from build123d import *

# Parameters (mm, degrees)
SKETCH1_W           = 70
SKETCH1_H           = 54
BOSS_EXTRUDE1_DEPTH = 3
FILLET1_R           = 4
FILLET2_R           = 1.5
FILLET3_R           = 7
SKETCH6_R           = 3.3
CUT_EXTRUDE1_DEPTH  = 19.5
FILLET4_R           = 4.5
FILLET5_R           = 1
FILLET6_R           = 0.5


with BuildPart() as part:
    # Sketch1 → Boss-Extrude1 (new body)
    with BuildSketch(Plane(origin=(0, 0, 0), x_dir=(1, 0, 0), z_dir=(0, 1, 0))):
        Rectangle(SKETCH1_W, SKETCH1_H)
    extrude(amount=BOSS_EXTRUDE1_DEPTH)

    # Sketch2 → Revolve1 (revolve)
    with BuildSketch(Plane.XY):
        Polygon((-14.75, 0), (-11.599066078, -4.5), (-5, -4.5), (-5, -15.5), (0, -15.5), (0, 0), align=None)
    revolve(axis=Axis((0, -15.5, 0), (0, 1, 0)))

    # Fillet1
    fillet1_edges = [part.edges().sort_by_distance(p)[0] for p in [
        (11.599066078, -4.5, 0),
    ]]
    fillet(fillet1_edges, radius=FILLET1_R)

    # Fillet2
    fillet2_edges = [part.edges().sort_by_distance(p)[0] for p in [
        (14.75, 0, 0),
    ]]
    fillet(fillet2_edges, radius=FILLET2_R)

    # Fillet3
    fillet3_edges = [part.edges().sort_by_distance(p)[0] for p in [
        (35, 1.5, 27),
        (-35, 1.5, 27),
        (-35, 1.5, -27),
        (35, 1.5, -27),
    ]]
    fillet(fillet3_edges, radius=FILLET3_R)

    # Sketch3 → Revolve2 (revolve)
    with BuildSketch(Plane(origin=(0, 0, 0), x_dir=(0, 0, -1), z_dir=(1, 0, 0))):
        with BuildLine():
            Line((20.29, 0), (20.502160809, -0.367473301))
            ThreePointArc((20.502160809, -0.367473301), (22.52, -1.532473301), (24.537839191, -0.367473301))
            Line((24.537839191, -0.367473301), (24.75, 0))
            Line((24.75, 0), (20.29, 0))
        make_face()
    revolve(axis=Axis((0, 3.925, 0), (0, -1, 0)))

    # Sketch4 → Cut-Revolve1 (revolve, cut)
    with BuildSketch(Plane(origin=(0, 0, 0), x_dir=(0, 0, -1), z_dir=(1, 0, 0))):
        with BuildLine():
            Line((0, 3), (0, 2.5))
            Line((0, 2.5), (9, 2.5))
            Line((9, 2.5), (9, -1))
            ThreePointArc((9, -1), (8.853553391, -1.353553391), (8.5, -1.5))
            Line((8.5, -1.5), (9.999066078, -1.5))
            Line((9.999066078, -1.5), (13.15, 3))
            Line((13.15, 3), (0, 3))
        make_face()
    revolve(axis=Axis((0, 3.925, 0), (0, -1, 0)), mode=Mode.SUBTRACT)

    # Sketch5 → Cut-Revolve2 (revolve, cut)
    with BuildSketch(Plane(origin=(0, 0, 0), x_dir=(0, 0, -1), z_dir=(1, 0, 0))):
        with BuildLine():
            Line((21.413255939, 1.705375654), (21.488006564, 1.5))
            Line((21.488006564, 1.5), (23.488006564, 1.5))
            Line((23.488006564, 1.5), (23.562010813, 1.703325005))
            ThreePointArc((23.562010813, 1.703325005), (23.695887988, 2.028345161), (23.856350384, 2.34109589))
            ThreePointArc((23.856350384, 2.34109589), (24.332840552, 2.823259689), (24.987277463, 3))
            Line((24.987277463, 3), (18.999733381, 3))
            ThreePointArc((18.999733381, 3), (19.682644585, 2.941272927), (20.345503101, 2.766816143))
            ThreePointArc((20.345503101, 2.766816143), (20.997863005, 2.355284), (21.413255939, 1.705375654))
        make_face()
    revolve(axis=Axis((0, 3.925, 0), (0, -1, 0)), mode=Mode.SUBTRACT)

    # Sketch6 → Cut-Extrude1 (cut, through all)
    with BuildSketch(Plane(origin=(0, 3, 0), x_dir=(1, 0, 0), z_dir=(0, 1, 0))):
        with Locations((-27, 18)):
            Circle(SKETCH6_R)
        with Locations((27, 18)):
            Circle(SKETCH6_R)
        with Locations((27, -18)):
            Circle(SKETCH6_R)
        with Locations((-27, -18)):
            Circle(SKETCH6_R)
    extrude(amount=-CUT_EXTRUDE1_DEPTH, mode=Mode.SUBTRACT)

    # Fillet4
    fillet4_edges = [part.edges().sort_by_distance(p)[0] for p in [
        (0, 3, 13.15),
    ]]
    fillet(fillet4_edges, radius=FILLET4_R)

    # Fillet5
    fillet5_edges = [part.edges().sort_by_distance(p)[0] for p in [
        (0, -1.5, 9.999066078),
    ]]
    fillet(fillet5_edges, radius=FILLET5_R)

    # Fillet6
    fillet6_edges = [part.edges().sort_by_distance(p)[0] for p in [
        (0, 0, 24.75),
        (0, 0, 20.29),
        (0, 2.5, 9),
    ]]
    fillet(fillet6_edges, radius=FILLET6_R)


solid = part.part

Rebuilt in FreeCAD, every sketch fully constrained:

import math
import FreeCAD as App
import Part
import Sketcher
from FreeCAD import Vector
Q = App.Units.Quantity


def edges_at(feature, points):
    """Names of the edges that pass closest to the given points."""
    edges = feature.Shape.Edges
    near = lambda p: min(range(len(edges)), key=lambda i: edges[i].distToShape(Part.Vertex(*p))[0])
    return sorted({f"Edge{near(p) + 1}" for p in points})


def add_polygon(sketch, points):
    """Adds a closed chain of lines whose ends are joined by coincident constraints."""
    first, n = sketch.GeometryCount, len(points)
    for a, b in zip(points, points[1:] + points[:1]):
        sketch.addGeometry(Part.LineSegment(App.Vector(*a, 0), App.Vector(*b, 0)), False)
    for i in range(n):
        sketch.addConstraint(Sketcher.Constraint("Coincident", first + i, 2, first + (i + 1) % n, 1))

doc = App.newDocument("Part")
body = doc.addObject("PartDesign::Body", "Body")

# Sketch on XZ plane
sketch1 = doc.addObject("Sketcher::SketchObject", "Sketch")
body.addObject(sketch1)
sketch1.AttachmentSupport = (doc.XZ_Plane, [""])
sketch1.MapMode = "FlatFace"
add_polygon(sketch1, [(-35, -27), (-35, 27), (35, 27), (35, -27)])  # lines 0-3
sketch1.addConstraint(Sketcher.Constraint("Vertical", 0))
sketch1.addConstraint(Sketcher.Constraint("Horizontal", 1))
sketch1.addConstraint(Sketcher.Constraint("Vertical", 2))
sketch1.addConstraint(Sketcher.Constraint("Horizontal", 3))
sketch1.addConstraint(Sketcher.Constraint("Symmetric", 0, 2, 2, 2, -1, 1))
sketch1.addConstraint(Sketcher.Constraint("DistanceX", 1, 1, 1, 2, 70.0))
sketch1.addConstraint(Sketcher.Constraint("DistanceY", 0, 1, 0, 2, 54.0))
pad1 = doc.addObject("PartDesign::Pad", "Pad")
body.addObject(pad1)
pad1.Profile = sketch1
pad1.Length = 3
pad1.Reversed = True

# Sketch on XY plane
sketch2 = doc.addObject("Sketcher::SketchObject", "Sketch001")
body.addObject(sketch2)
sketch2.AttachmentSupport = (doc.XY_Plane, [""])
sketch2.MapMode = "FlatFace"
add_polygon(sketch2, [(-15, 0), (-12, -4), (-5, -4), (-5, -16), (0, -16), (0, 0)])  # lines 0-5
sketch2.addConstraint(Sketcher.Constraint("Horizontal", 1))
sketch2.addConstraint(Sketcher.Constraint("Vertical", 2))
sketch2.addConstraint(Sketcher.Constraint("Horizontal", 3))
sketch2.addConstraint(Sketcher.Constraint("Vertical", 4))
sketch2.addConstraint(Sketcher.Constraint("Horizontal", 5))
sketch2.addConstraint(Sketcher.Constraint("Coincident", 4, 2, -1, 1))
sketch2.addConstraint(Sketcher.Constraint("DistanceX", 3, 1, 3, 2, 5.0))
sketch2.addConstraint(Sketcher.Constraint("DistanceY", 2, 2, 2, 1, 11.0))
sketch2.addConstraint(Sketcher.Constraint("Angle", 0, Q("-55 deg")))
sketch2.addConstraint(Sketcher.Constraint("DistanceY", 4, 1, 4, 2, 15.5))
sketch2.addConstraint(Sketcher.Constraint("DistanceX", 5, 2, 5, 1, 14.75))
revolution = doc.addObject("PartDesign::Revolution", "Revolution")
body.addObject(revolution)
revolution.Profile = sketch2
revolution.ReferenceAxis = (sketch2, ["V_Axis"])
revolution.Angle = 360
doc.recompute()

fillet = doc.addObject("PartDesign::Fillet", "Fillet")
body.addObject(fillet)
fillet.Base = (revolution, edges_at(revolution, [(11.599, -4.5, 0)]))
fillet.Radius = 4
doc.recompute()

fillet2 = doc.addObject("PartDesign::Fillet", "Fillet001")
body.addObject(fillet2)
fillet2.Base = (fillet, edges_at(fillet, [(14.75, 0, 0)]))
fillet2.Radius = 1.5
doc.recompute()

fillet3 = doc.addObject("PartDesign::Fillet", "Fillet002")
body.addObject(fillet3)
fillet3.Base = (fillet2, edges_at(fillet2, [
    (35, 1.5, 27),
    (-35, 1.5, 27),
    (-35, 1.5, -27),
    (35, 1.5, -27),
]))
fillet3.Radius = 7

# Sketch on YZ plane
sketch3 = doc.addObject("Sketcher::SketchObject", "Sketch002")
body.addObject(sketch3)
sketch3.AttachmentSupport = (doc.YZ_Plane, [""])
sketch3.MapMode = "FlatFace"
sketch3.addGeometry(Part.LineSegment(Vector(0, -20.29, 0), Vector(-0.37, -20.5, 0)), False)
sketch3.addGeometry(Part.ArcOfCircle(Part.Circle(Vector(0.8, -22.52, 0), Vector(0, 0, 1), 2.33), math.radians(120), math.radians(240)), False)
sketch3.addGeometry(Part.LineSegment(Vector(-0.37, -24.54, 0), Vector(0, -24.75, 0)), False)
sketch3.addGeometry(Part.LineSegment(Vector(0, -24.75, 0), Vector(0, -20.29, 0)), False)
sketch3.addConstraint(Sketcher.Constraint("Tangent", 0, 2, 1, 1))
sketch3.addConstraint(Sketcher.Constraint("Tangent", 1, 2, 2, 1))
sketch3.addConstraint(Sketcher.Constraint("Coincident", 2, 2, 3, 1))
sketch3.addConstraint(Sketcher.Constraint("Coincident", 3, 2, 0, 1))
sketch3.addConstraint(Sketcher.Constraint("Vertical", 3))
sketch3.addConstraint(Sketcher.Constraint("PointOnObject", 2, 2, -2))
sketch3.addConstraint(Sketcher.Constraint("Vertical", 0, 2, 1, 2))
sketch3.addConstraint(Sketcher.Constraint("Angle", 0, Q("-150 deg")))
sketch3.addConstraint(Sketcher.Constraint("Radius", 1, 2.33))
sketch3.addConstraint(Sketcher.Constraint("DistanceY", 3, 1, 3, 2, 4.46))
sketch3.addConstraint(Sketcher.Constraint("DistanceY", 1, 3, -1, 1, 22.52))
revolution2 = doc.addObject("PartDesign::Revolution", "Revolution001")
body.addObject(revolution2)
revolution2.Profile = sketch3
revolution2.ReferenceAxis = (sketch3, ["H_Axis"])
revolution2.Angle = 360

# Sketch on YZ plane
sketch4 = doc.addObject("Sketcher::SketchObject", "Sketch003")
body.addObject(sketch4)
sketch4.AttachmentSupport = (doc.YZ_Plane, [""])
sketch4.MapMode = "FlatFace"
sketch4.addGeometry(Part.LineSegment(Vector(3, 0, 0), Vector(2.5, 0, 0)), False)
sketch4.addGeometry(Part.LineSegment(Vector(2.5, 0, 0), Vector(2.5, -9, 0)), False)
sketch4.addGeometry(Part.LineSegment(Vector(2.5, -9, 0), Vector(-1, -9, 0)), False)
sketch4.addGeometry(Part.ArcOfCircle(Part.Circle(Vector(-1, -8.5, 0), Vector(0, 0, 1), 0.5), math.radians(180), math.radians(270)), False)
sketch4.addGeometry(Part.LineSegment(Vector(-1.5, -8.5, 0), Vector(-1.5, -10, 0)), False)
sketch4.addGeometry(Part.LineSegment(Vector(-1.5, -10, 0), Vector(3, -13.15, 0)), False)
sketch4.addGeometry(Part.LineSegment(Vector(3, -13.15, 0), Vector(3, 0, 0)), False)
sketch4.addConstraint(Sketcher.Constraint("Coincident", 0, 2, 1, 1))
sketch4.addConstraint(Sketcher.Constraint("Coincident", 1, 2, 2, 1))
sketch4.addConstraint(Sketcher.Constraint("Tangent", 2, 2, 3, 2))
sketch4.addConstraint(Sketcher.Constraint("Tangent", 3, 1, 4, 1))
sketch4.addConstraint(Sketcher.Constraint("Coincident", 4, 2, 5, 1))
sketch4.addConstraint(Sketcher.Constraint("Coincident", 5, 2, 6, 1))
sketch4.addConstraint(Sketcher.Constraint("Coincident", 6, 2, 0, 1))
sketch4.addConstraint(Sketcher.Constraint("Horizontal", 0))
sketch4.addConstraint(Sketcher.Constraint("Vertical", 1))
sketch4.addConstraint(Sketcher.Constraint("Horizontal", 2))
sketch4.addConstraint(Sketcher.Constraint("Vertical", 4))
sketch4.addConstraint(Sketcher.Constraint("Vertical", 6))
sketch4.addConstraint(Sketcher.Constraint("PointOnObject", 0, 2, -1))
sketch4.addConstraint(Sketcher.Constraint("Radius", 3, 0.5))
sketch4.addConstraint(Sketcher.Constraint("DistanceY", 1, 2, 1, 1, 9.0))
sketch4.addConstraint(Sketcher.Constraint("Angle", 5, Q("-35 deg")))
sketch4.addConstraint(Sketcher.Constraint("DistanceX", 0, 2, 0, 1, 0.5))
sketch4.addConstraint(Sketcher.Constraint("DistanceX", 2, 2, 2, 1, 3.5))
sketch4.addConstraint(Sketcher.Constraint("DistanceX", 3, 3, -1, 1, 1.0))
sketch4.addConstraint(Sketcher.Constraint("DistanceY", 6, 1, 6, 2, 13.15))
groove = doc.addObject("PartDesign::Groove", "Groove")
body.addObject(groove)
groove.Profile = sketch4
groove.ReferenceAxis = (sketch4, ["H_Axis"])
groove.Angle = 360

# Sketch on YZ plane
sketch5 = doc.addObject("Sketcher::SketchObject", "Sketch004")
body.addObject(sketch5)
sketch5.AttachmentSupport = (doc.YZ_Plane, [""])
sketch5.MapMode = "FlatFace"
sketch5.addGeometry(Part.LineSegment(Vector(1.71, -21.41, 0), Vector(1.5, -21.49, 0)), False)
sketch5.addGeometry(Part.LineSegment(Vector(1.5, -21.49, 0), Vector(1.5, -23.49, 0)), False)
sketch5.addGeometry(Part.LineSegment(Vector(1.5, -23.49, 0), Vector(1.7, -23.56, 0)), False)
sketch5.addGeometry(Part.ArcOfCircle(Part.Circle(Vector(0.26, -27.53, 0), Vector(0, 0, 1), 4.22), math.radians(60.45), math.radians(70)), False)
sketch5.addGeometry(Part.ArcOfCircle(Part.Circle(Vector(1.7, -24.99, 0), Vector(0, 0, 1), 1.3), math.radians(0), math.radians(60)), False)
sketch5.addGeometry(Part.LineSegment(Vector(3, -24.99, 0), Vector(3, -19, 0)), False)
sketch5.addGeometry(Part.ArcOfCircle(Part.Circle(Vector(-1, -19, 0), Vector(0, 0, 1), 4), math.radians(-19.66), math.radians(0)), False)
sketch5.addGeometry(Part.ArcOfCircle(Part.Circle(Vector(1.1, -19.75, 0), Vector(0, 0, 1), 1.77), math.radians(-70), math.radians(-20)), False)
sketch5.addConstraint(Sketcher.Constraint("Coincident", 0, 2, 1, 1))
sketch5.addConstraint(Sketcher.Constraint("Coincident", 1, 2, 2, 1))
sketch5.addConstraint(Sketcher.Constraint("Tangent", 2, 2, 3, 2))
sketch5.addConstraint(Sketcher.Constraint("Tangent", 3, 1, 4, 2))
sketch5.addConstraint(Sketcher.Constraint("Tangent", 4, 1, 5, 1))
sketch5.addConstraint(Sketcher.Constraint("Tangent", 5, 2, 6, 2))
sketch5.addConstraint(Sketcher.Constraint("Tangent", 6, 1, 7, 2))
sketch5.addConstraint(Sketcher.Constraint("Tangent", 7, 1, 0, 1))
sketch5.addConstraint(Sketcher.Constraint("Vertical", 1))
sketch5.addConstraint(Sketcher.Constraint("Vertical", 5))
sketch5.addConstraint(Sketcher.Constraint("Radius", 6, 4.0))
sketch5.addConstraint(Sketcher.Constraint("Radius", 4, 1.3))
sketch5.addConstraint(Sketcher.Constraint("DistanceY", 1, 2, 1, 1, 2.0))
sketch5.addConstraint(Sketcher.Constraint("Angle", 0, Q("-160 deg")))
sketch5.addConstraint(Sketcher.Constraint("Angle", 2, Q("-20 deg")))
sketch5.addConstraint(Sketcher.Constraint("Radius", 3, 4.22))
sketch5.addConstraint(Sketcher.Constraint("Radius", 7, 1.77))
sketch5.addConstraint(Sketcher.Constraint("DistanceX", 6, 3, -1, 1, 1.0))
sketch5.addConstraint(Sketcher.Constraint("DistanceX", -1, 1, 7, 3, 1.1))
sketch5.addConstraint(Sketcher.Constraint("DistanceX", -1, 1, 0, 2, 1.5))
sketch5.addConstraint(Sketcher.Constraint("DistanceX", -1, 1, 3, 3, 0.26))
sketch5.addConstraint(Sketcher.Constraint("DistanceY", 7, 3, -1, 1, 19.75))
groove2 = doc.addObject("PartDesign::Groove", "Groove001")
body.addObject(groove2)
groove2.Profile = sketch5
groove2.ReferenceAxis = (sketch5, ["H_Axis"])
groove2.Angle = 360

# Sketch on XZ plane
sketch6 = doc.addObject("Sketcher::SketchObject", "Sketch005")
body.addObject(sketch6)
sketch6.AttachmentSupport = (doc.XZ_Plane, [""])
sketch6.MapMode = "FlatFace"
sketch6.AttachmentOffset = App.Placement(Vector(0, 0, -3), App.Rotation())
sketch6.addGeometry(Part.Circle(Vector(-27, -18, 0), Vector(0, 0, 1), 3.3), False)
sketch6.addGeometry(Part.Circle(Vector(27, -18, 0), Vector(0, 0, 1), 3.3), False)
sketch6.addGeometry(Part.Circle(Vector(27, 18, 0), Vector(0, 0, 1), 3.3), False)
sketch6.addGeometry(Part.Circle(Vector(-27, 18, 0), Vector(0, 0, 1), 3.3), False)
sketch6.addConstraint(Sketcher.Constraint("Equal", 0, 1))
sketch6.addConstraint(Sketcher.Constraint("Equal", 1, 2))
sketch6.addConstraint(Sketcher.Constraint("Equal", 2, 3))
sketch6.addConstraint(Sketcher.Constraint("Symmetric", 0, 3, 2, 3, -1, 1))
sketch6.addConstraint(Sketcher.Constraint("Symmetric", 1, 3, 3, 3, -1, 1))
sketch6.addConstraint(Sketcher.Constraint("Symmetric", 0, 3, 1, 3, -2))
sketch6.addConstraint(Sketcher.Constraint("Diameter", 0, 6.6))
sketch6.addConstraint(Sketcher.Constraint("DistanceX", 0, 3, -1, 1, 27.0))
sketch6.addConstraint(Sketcher.Constraint("DistanceY", 0, 3, -1, 1, 18.0))
pocket1 = doc.addObject("PartDesign::Pocket", "Pocket")
body.addObject(pocket1)
pocket1.Profile = sketch6
pocket1.Type = "ThroughAll"
pocket1.Reversed = True
doc.recompute()

fillet4 = doc.addObject("PartDesign::Fillet", "Fillet003")
body.addObject(fillet4)
fillet4.Base = (pocket1, edges_at(pocket1, [(0, 3, 13.15)]))
fillet4.Radius = 4.5
doc.recompute()

fillet5 = doc.addObject("PartDesign::Fillet", "Fillet004")
body.addObject(fillet5)
fillet5.Base = (fillet4, edges_at(fillet4, [(0, -1.5, 9.999)]))
fillet5.Radius = 1
doc.recompute()

fillet6 = doc.addObject("PartDesign::Fillet", "Fillet005")
body.addObject(fillet6)
fillet6.Base = (fillet5, edges_at(fillet5, [(0, 0, 24.75), (0, 0, 20.29), (0, 2.5, 9)]))
fillet6.Radius = 0.5

doc.recompute()
